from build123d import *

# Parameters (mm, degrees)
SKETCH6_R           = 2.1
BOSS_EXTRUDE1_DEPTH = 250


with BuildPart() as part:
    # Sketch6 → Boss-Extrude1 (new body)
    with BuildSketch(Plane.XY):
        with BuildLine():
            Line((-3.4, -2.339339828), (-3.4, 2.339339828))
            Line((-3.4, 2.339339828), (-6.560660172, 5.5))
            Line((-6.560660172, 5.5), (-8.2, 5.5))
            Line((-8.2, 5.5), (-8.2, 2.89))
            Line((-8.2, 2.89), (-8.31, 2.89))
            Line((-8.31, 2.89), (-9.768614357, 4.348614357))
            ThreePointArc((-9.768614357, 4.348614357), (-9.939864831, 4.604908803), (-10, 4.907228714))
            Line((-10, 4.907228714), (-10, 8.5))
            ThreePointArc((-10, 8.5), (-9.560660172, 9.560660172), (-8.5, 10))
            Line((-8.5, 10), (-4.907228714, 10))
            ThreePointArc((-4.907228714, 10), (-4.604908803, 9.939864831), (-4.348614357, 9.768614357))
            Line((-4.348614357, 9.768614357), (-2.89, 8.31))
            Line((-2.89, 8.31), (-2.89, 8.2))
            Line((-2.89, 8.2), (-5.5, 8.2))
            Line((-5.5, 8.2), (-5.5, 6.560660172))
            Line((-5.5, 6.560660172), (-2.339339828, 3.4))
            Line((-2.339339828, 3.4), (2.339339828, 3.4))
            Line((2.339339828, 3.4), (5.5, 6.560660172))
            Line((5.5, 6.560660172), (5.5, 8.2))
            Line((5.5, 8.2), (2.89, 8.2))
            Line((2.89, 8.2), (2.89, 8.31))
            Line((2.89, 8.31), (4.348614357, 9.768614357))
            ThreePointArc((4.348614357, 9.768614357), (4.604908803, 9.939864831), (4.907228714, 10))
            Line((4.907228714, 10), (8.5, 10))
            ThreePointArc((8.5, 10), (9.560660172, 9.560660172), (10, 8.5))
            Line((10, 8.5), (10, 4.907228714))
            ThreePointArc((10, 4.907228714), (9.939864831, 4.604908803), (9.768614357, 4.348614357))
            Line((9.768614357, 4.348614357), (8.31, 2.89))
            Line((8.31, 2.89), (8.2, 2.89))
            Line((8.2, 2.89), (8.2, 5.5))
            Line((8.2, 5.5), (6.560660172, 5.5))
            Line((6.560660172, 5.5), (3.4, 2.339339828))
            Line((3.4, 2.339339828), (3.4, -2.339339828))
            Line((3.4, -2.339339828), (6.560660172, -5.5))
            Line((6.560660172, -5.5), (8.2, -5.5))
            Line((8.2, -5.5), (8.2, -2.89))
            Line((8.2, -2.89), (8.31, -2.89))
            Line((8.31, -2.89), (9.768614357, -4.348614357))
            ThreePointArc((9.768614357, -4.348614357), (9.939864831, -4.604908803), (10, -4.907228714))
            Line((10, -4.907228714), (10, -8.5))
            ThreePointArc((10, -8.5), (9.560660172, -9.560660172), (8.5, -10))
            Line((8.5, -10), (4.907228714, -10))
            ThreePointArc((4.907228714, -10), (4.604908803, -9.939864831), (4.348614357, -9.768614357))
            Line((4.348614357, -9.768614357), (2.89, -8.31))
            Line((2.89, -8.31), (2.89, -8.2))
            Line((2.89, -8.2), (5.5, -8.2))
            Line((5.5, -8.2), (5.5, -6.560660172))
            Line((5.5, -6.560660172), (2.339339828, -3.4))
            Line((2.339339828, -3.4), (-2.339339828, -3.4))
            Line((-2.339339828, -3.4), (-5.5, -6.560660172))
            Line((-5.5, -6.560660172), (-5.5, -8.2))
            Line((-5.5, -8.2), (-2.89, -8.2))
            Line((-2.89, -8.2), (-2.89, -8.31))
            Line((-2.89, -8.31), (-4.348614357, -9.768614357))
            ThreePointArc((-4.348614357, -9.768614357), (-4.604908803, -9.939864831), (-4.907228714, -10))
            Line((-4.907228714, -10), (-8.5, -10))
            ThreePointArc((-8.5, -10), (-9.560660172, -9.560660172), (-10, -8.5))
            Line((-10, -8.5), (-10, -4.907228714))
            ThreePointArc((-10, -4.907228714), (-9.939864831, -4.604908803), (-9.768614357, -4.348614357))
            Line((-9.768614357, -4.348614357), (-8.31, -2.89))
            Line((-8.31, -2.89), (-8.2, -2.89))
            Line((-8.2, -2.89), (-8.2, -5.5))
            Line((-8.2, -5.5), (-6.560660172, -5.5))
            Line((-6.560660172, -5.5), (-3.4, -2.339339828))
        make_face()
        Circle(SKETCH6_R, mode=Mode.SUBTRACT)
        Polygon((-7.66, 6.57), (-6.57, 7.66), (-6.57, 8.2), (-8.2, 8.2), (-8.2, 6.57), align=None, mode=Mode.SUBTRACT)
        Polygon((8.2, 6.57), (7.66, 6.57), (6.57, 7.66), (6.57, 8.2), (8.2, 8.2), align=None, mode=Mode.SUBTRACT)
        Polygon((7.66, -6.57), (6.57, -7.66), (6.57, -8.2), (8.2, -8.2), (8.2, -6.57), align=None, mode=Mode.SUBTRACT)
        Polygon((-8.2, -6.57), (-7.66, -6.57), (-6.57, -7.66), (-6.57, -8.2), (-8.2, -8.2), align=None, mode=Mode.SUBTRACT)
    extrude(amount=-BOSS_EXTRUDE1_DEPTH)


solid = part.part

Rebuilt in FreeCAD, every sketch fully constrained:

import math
import FreeCAD as App
import Part
import Sketcher
from FreeCAD import Vector
Q = App.Units.Quantity

doc = App.newDocument("Part")
body = doc.addObject("PartDesign::Body", "Body")

# Sketch on XY plane
sketch1 = doc.addObject("Sketcher::SketchObject", "Sketch")
body.addObject(sketch1)
sketch1.AttachmentSupport = (doc.XY_Plane, [""])
sketch1.MapMode = "FlatFace"
sketch1.addGeometry([
    Part.LineSegment(Vector(-3.4, 2.34, 0), Vector(-3.4, -2.34, 0)),  # 0
    Part.LineSegment(Vector(-3.4, -2.34, 0), Vector(-6.56, -5.5, 0)),  # 1
    Part.LineSegment(Vector(-6.56, -5.5, 0), Vector(-8.2, -5.5, 0)),  # 2
    Part.LineSegment(Vector(-8.2, -5.5, 0), Vector(-8.2, -2.89, 0)),  # 3
    Part.LineSegment(Vector(-8.2, -2.89, 0), Vector(-8.31, -2.89, 0)),  # 4
    Part.LineSegment(Vector(-8.31, -2.89, 0), Vector(-9.77, -4.35, 0)),  # 5
    Part.ArcOfCircle(Part.Circle(Vector(-9.21, -4.91, 0), Vector(0, 0, 1), 0.79), math.radians(135), math.radians(180)),  # 6
    Part.LineSegment(Vector(-10, -4.91, 0), Vector(-10, -8.5, 0)),  # 7
    Part.ArcOfCircle(Part.Circle(Vector(-8.5, -8.5, 0), Vector(0, 0, 1), 1.5), math.radians(180), math.radians(270)),  # 8
    Part.LineSegment(Vector(-8.5, -10, 0), Vector(-4.91, -10, 0)),  # 9
    Part.ArcOfCircle(Part.Circle(Vector(-4.91, -9.21, 0), Vector(0, 0, 1), 0.79), math.radians(-90), math.radians(-45)),  # 10
    Part.LineSegment(Vector(-4.35, -9.77, 0), Vector(-2.89, -8.31, 0)),  # 11
    Part.LineSegment(Vector(-2.89, -8.31, 0), Vector(-2.89, -8.2, 0)),  # 12
    Part.LineSegment(Vector(-2.89, -8.2, 0), Vector(-5.5, -8.2, 0)),  # 13
    Part.LineSegment(Vector(-5.5, -8.2, 0), Vector(-5.5, -6.56, 0)),  # 14
    Part.LineSegment(Vector(-5.5, -6.56, 0), Vector(-2.34, -3.4, 0)),  # 15
    Part.LineSegment(Vector(-2.34, -3.4, 0), Vector(2.34, -3.4, 0)),  # 16
    Part.LineSegment(Vector(2.34, -3.4, 0), Vector(5.5, -6.56, 0)),  # 17
    Part.LineSegment(Vector(5.5, -6.56, 0), Vector(5.5, -8.2, 0)),  # 18
    Part.LineSegment(Vector(5.5, -8.2, 0), Vector(2.89, -8.2, 0)),  # 19
    Part.LineSegment(Vector(2.89, -8.2, 0), Vector(2.89, -8.31, 0)),  # 20
    Part.LineSegment(Vector(2.89, -8.31, 0), Vector(4.35, -9.77, 0)),  # 21
    Part.ArcOfCircle(Part.Circle(Vector(4.91, -9.21, 0), Vector(0, 0, 1), 0.79), math.radians(-135), math.radians(-90)),  # 22
    Part.LineSegment(Vector(4.91, -10, 0), Vector(8.5, -10, 0)),  # 23
    Part.ArcOfCircle(Part.Circle(Vector(8.5, -8.5, 0), Vector(0, 0, 1), 1.5), math.radians(-90), math.radians(0)),  # 24
    Part.LineSegment(Vector(10, -8.5, 0), Vector(10, -4.91, 0)),  # 25
    Part.ArcOfCircle(Part.Circle(Vector(9.21, -4.91, 0), Vector(0, 0, 1), 0.79), math.radians(0), math.radians(45)),  # 26
    Part.LineSegment(Vector(9.77, -4.35, 0), Vector(8.31, -2.89, 0)),  # 27
    Part.LineSegment(Vector(8.31, -2.89, 0), Vector(8.2, -2.89, 0)),  # 28
    Part.LineSegment(Vector(8.2, -2.89, 0), Vector(8.2, -5.5, 0)),  # 29
    Part.LineSegment(Vector(8.2, -5.5, 0), Vector(6.56, -5.5, 0)),  # 30
    Part.LineSegment(Vector(6.56, -5.5, 0), Vector(3.4, -2.34, 0)),  # 31
    Part.LineSegment(Vector(3.4, -2.34, 0), Vector(3.4, 2.34, 0)),  # 32
    Part.LineSegment(Vector(3.4, 2.34, 0), Vector(6.56, 5.5, 0)),  # 33
    Part.LineSegment(Vector(6.56, 5.5, 0), Vector(8.2, 5.5, 0)),  # 34
    Part.LineSegment(Vector(8.2, 5.5, 0), Vector(8.2, 2.89, 0)),  # 35
    Part.LineSegment(Vector(8.2, 2.89, 0), Vector(8.31, 2.89, 0)),  # 36
    Part.LineSegment(Vector(8.31, 2.89, 0), Vector(9.77, 4.35, 0)),  # 37
    Part.ArcOfCircle(Part.Circle(Vector(9.21, 4.91, 0), Vector(0, 0, 1), 0.79), math.radians(-45), math.radians(0)),  # 38
    Part.LineSegment(Vector(10, 4.91, 0), Vector(10, 8.5, 0)),  # 39
    Part.ArcOfCircle(Part.Circle(Vector(8.5, 8.5, 0), Vector(0, 0, 1), 1.5), math.radians(0), math.radians(90)),  # 40
    Part.LineSegment(Vector(8.5, 10, 0), Vector(4.91, 10, 0)),  # 41
    Part.ArcOfCircle(Part.Circle(Vector(4.91, 9.21, 0), Vector(0, 0, 1), 0.79), math.radians(90), math.radians(135)),  # 42
    Part.LineSegment(Vector(4.35, 9.77, 0), Vector(2.89, 8.31, 0)),  # 43
    Part.LineSegment(Vector(2.89, 8.31, 0), Vector(2.89, 8.2, 0)),  # 44
    Part.LineSegment(Vector(2.89, 8.2, 0), Vector(5.5, 8.2, 0)),  # 45
    Part.LineSegment(Vector(5.5, 8.2, 0), Vector(5.5, 6.56, 0)),  # 46
    Part.LineSegment(Vector(5.5, 6.56, 0), Vector(2.34, 3.4, 0)),  # 47
    Part.LineSegment(Vector(2.34, 3.4, 0), Vector(-2.34, 3.4, 0)),  # 48
    Part.LineSegment(Vector(-2.34, 3.4, 0), Vector(-5.5, 6.56, 0)),  # 49
    Part.LineSegment(Vector(-5.5, 6.56, 0), Vector(-5.5, 8.2, 0)),  # 50
    Part.LineSegment(Vector(-5.5, 8.2, 0), Vector(-2.89, 8.2, 0)),  # 51
    Part.LineSegment(Vector(-2.89, 8.2, 0), Vector(-2.89, 8.31, 0)),  # 52
    Part.LineSegment(Vector(-2.89, 8.31, 0), Vector(-4.35, 9.77, 0)),  # 53
    Part.ArcOfCircle(Part.Circle(Vector(-4.91, 9.21, 0), Vector(0, 0, 1), 0.79), math.radians(45), math.radians(90)),  # 54
    Part.LineSegment(Vector(-4.91, 10, 0), Vector(-8.5, 10, 0)),  # 55
    Part.ArcOfCircle(Part.Circle(Vector(-8.5, 8.5, 0), Vector(0, 0, 1), 1.5), math.radians(90), math.radians(180)),  # 56
    Part.LineSegment(Vector(-10, 8.5, 0), Vector(-10, 4.91, 0)),  # 57
    Part.ArcOfCircle(Part.Circle(Vector(-9.21, 4.91, 0), Vector(0, 0, 1), 0.79), math.radians(180), math.radians(225)),  # 58
    Part.LineSegment(Vector(-9.77, 4.35, 0), Vector(-8.31, 2.89, 0)),  # 59
    Part.LineSegment(Vector(-8.31, 2.89, 0), Vector(-8.2, 2.89, 0)),  # 60
    Part.LineSegment(Vector(-8.2, 2.89, 0), Vector(-8.2, 5.5, 0)),  # 61
    Part.LineSegment(Vector(-8.2, 5.5, 0), Vector(-6.56, 5.5, 0)),  # 62
    Part.LineSegment(Vector(-6.56, 5.5, 0), Vector(-3.4, 2.34, 0)),  # 63
    Part.LineSegment(Vector(7.66, -6.57, 0), Vector(8.2, -6.57, 0)),  # 64
    Part.LineSegment(Vector(8.2, -6.57, 0), Vector(8.2, -8.2, 0)),  # 65
    Part.LineSegment(Vector(8.2, -8.2, 0), Vector(6.57, -8.2, 0)),  # 66
    Part.LineSegment(Vector(6.57, -8.2, 0), Vector(6.57, -7.66, 0)),  # 67
    Part.LineSegment(Vector(6.57, -7.66, 0), Vector(7.66, -6.57, 0)),  # 68
    Part.LineSegment(Vector(-8.2, -6.57, 0), Vector(-7.66, -6.57, 0)),  # 69
    Part.LineSegment(Vector(-7.66, -6.57, 0), Vector(-6.57, -7.66, 0)),  # 70
    Part.LineSegment(Vector(-6.57, -7.66, 0), Vector(-6.57, -8.2, 0)),  # 71
    Part.LineSegment(Vector(-6.57, -8.2, 0), Vector(-8.2, -8.2, 0)),  # 72
    Part.LineSegment(Vector(-8.2, -8.2, 0), Vector(-8.2, -6.57, 0)),  # 73
    Part.LineSegment(Vector(8.2, 6.57, 0), Vector(7.66, 6.57, 0)),  # 74
    Part.LineSegment(Vector(7.66, 6.57, 0), Vector(6.57, 7.66, 0)),  # 75
    Part.LineSegment(Vector(6.57, 7.66, 0), Vector(6.57, 8.2, 0)),  # 76
    Part.LineSegment(Vector(6.57, 8.2, 0), Vector(8.2, 8.2, 0)),  # 77
    Part.LineSegment(Vector(8.2, 8.2, 0), Vector(8.2, 6.57, 0)),  # 78
    Part.Circle(Vector(0, 0, 0), Vector(0, 0, 1), 2.1),  # 79
    Part.LineSegment(Vector(-7.66, 6.57, 0), Vector(-8.2, 6.57, 0)),  # 80
    Part.LineSegment(Vector(-8.2, 6.57, 0), Vector(-8.2, 8.2, 0)),  # 81
    Part.LineSegment(Vector(-8.2, 8.2, 0), Vector(-6.57, 8.2, 0)),  # 82
    Part.LineSegment(Vector(-6.57, 8.2, 0), Vector(-6.57, 7.66, 0)),  # 83
    Part.LineSegment(Vector(-6.57, 7.66, 0), Vector(-7.66, 6.57, 0)),  # 84
], False)
sketch1.addConstraint([
    Sketcher.Constraint("Coincident", 0, 2, 1, 1),
    Sketcher.Constraint("Coincident", 1, 2, 2, 1),
    Sketcher.Constraint("Coincident", 2, 2, 3, 1),
    Sketcher.Constraint("Coincident", 3, 2, 4, 1),
    Sketcher.Constraint("Coincident", 4, 2, 5, 1),
    Sketcher.Constraint("Tangent", 5, 2, 6, 1),
    Sketcher.Constraint("Tangent", 6, 2, 7, 1),
    Sketcher.Constraint("Tangent", 7, 2, 8, 1),
    Sketcher.Constraint("Tangent", 8, 2, 9, 1),
    Sketcher.Constraint("Tangent", 9, 2, 10, 1),
    Sketcher.Constraint("Tangent", 10, 2, 11, 1),
    Sketcher.Constraint("Coincident", 11, 2, 12, 1),
    Sketcher.Constraint("Coincident", 12, 2, 13, 1),
    Sketcher.Constraint("Coincident", 13, 2, 14, 1),
    Sketcher.Constraint("Coincident", 14, 2, 15, 1),
    Sketcher.Constraint("Coincident", 15, 2, 16, 1),
    Sketcher.Constraint("Coincident", 16, 2, 17, 1),
    Sketcher.Constraint("Coincident", 17, 2, 18, 1),
    Sketcher.Constraint("Coincident", 18, 2, 19, 1),
    Sketcher.Constraint("Coincident", 19, 2, 20, 1),
    Sketcher.Constraint("Coincident", 20, 2, 21, 1),
    Sketcher.Constraint("Tangent", 21, 2, 22, 1),
    Sketcher.Constraint("Tangent", 22, 2, 23, 1),
    Sketcher.Constraint("Tangent", 23, 2, 24, 1),
    Sketcher.Constraint("Tangent", 24, 2, 25, 1),
    Sketcher.Constraint("Tangent", 25, 2, 26, 1),
    Sketcher.Constraint("Tangent", 26, 2, 27, 1),
    Sketcher.Constraint("Coincident", 27, 2, 28, 1),
    Sketcher.Constraint("Coincident", 28, 2, 29, 1),
    Sketcher.Constraint("Coincident", 29, 2, 30, 1),
    Sketcher.Constraint("Coincident", 30, 2, 31, 1),
    Sketcher.Constraint("Coincident", 31, 2, 32, 1),
    Sketcher.Constraint("Coincident", 32, 2, 33, 1),
    Sketcher.Constraint("Coincident", 33, 2, 34, 1),
    Sketcher.Constraint("Coincident", 34, 2, 35, 1),
    Sketcher.Constraint("Coincident", 35, 2, 36, 1),
    Sketcher.Constraint("Coincident", 36, 2, 37, 1),
    Sketcher.Constraint("Tangent", 37, 2, 38, 1),
    Sketcher.Constraint("Tangent", 38, 2, 39, 1),
    Sketcher.Constraint("Tangent", 39, 2, 40, 1),
    Sketcher.Constraint("Tangent", 40, 2, 41, 1),
    Sketcher.Constraint("Tangent", 41, 2, 42, 1),
    Sketcher.Constraint("Tangent", 42, 2, 43, 1),
    Sketcher.Constraint("Coincident", 43, 2, 44, 1),
    Sketcher.Constraint("Coincident", 44, 2, 45, 1),
    Sketcher.Constraint("Coincident", 45, 2, 46, 1),
    Sketcher.Constraint("Coincident", 46, 2, 47, 1),
    Sketcher.Constraint("Coincident", 47, 2, 48, 1),
    Sketcher.Constraint("Coincident", 48, 2, 49, 1),
    Sketcher.Constraint("Coincident", 49, 2, 50, 1),
    Sketcher.Constraint("Coincident", 50, 2, 51, 1),
    Sketcher.Constraint("Coincident", 51, 2, 52, 1),
    Sketcher.Constraint("Coincident", 52, 2, 53, 1),
    Sketcher.Constraint("Tangent", 53, 2, 54, 1),
    Sketcher.Constraint("Tangent", 54, 2, 55, 1),
    Sketcher.Constraint("Tangent", 55, 2, 56, 1),
    Sketcher.Constraint("Tangent", 56, 2, 57, 1),
    Sketcher.Constraint("Tangent", 57, 2, 58, 1),
    Sketcher.Constraint("Tangent", 58, 2, 59, 1),
    Sketcher.Constraint("Coincident", 59, 2, 60, 1),
    Sketcher.Constraint("Coincident", 60, 2, 61, 1),
    Sketcher.Constraint("Coincident", 61, 2, 62, 1),
    Sketcher.Constraint("Coincident", 62, 2, 63, 1),
    Sketcher.Constraint("Coincident", 63, 2, 0, 1),
    Sketcher.Constraint("Coincident", 64, 2, 65, 1),
    Sketcher.Constraint("Coincident", 65, 2, 66, 1),
    Sketcher.Constraint("Coincident", 66, 2, 67, 1),
    Sketcher.Constraint("Coincident", 67, 2, 68, 1),
    Sketcher.Constraint("Coincident", 68, 2, 64, 1),
    Sketcher.Constraint("Coincident", 69, 2, 70, 1),
    Sketcher.Constraint("Coincident", 70, 2, 71, 1),
    Sketcher.Constraint("Coincident", 71, 2, 72, 1),
    Sketcher.Constraint("Coincident", 72, 2, 73, 1),
    Sketcher.Constraint("Coincident", 73, 2, 69, 1),
    Sketcher.Constraint("Coincident", 74, 2, 75, 1),
    Sketcher.Constraint("Coincident", 75, 2, 76, 1),
    Sketcher.Constraint("Coincident", 76, 2, 77, 1),
    Sketcher.Constraint("Coincident", 77, 2, 78, 1),
    Sketcher.Constraint("Coincident", 78, 2, 74, 1),
    Sketcher.Constraint("Coincident", 80, 2, 81, 1),
    Sketcher.Constraint("Coincident", 81, 2, 82, 1),
    Sketcher.Constraint("Coincident", 82, 2, 83, 1),
    Sketcher.Constraint("Coincident", 83, 2, 84, 1),
    Sketcher.Constraint("Coincident", 84, 2, 80, 1),
    Sketcher.Constraint("Vertical", 0),
    Sketcher.Constraint("Horizontal", 2),
    Sketcher.Constraint("Vertical", 3),
    Sketcher.Constraint("Horizontal", 4),
    Sketcher.Constraint("Vertical", 7),
    Sketcher.Constraint("Horizontal", 9),
    Sketcher.Constraint("Vertical", 12),
    Sketcher.Constraint("Horizontal", 13),
    Sketcher.Constraint("Vertical", 14),
    Sketcher.Constraint("Horizontal", 16),
    Sketcher.Constraint("Vertical", 18),
    Sketcher.Constraint("Horizontal", 19),
    Sketcher.Constraint("Vertical", 20),
    Sketcher.Constraint("Horizontal", 23),
    Sketcher.Constraint("Vertical", 25),
    Sketcher.Constraint("Horizontal", 28),
    Sketcher.Constraint("Vertical", 29),
    Sketcher.Constraint("Horizontal", 30),
    Sketcher.Constraint("Vertical", 32),
    Sketcher.Constraint("Horizontal", 34),
    Sketcher.Constraint("Vertical", 35),
    Sketcher.Constraint("Horizontal", 36),
    Sketcher.Constraint("Vertical", 39),
    Sketcher.Constraint("Horizontal", 41),
    Sketcher.Constraint("Vertical", 44),
    Sketcher.Constraint("Horizontal", 45),
    Sketcher.Constraint("Vertical", 46),
    Sketcher.Constraint("Horizontal", 48),
    Sketcher.Constraint("Vertical", 50),
    Sketcher.Constraint("Horizontal", 51),
    Sketcher.Constraint("Vertical", 52),
    Sketcher.Constraint("Horizontal", 55),
    Sketcher.Constraint("Vertical", 57),
    Sketcher.Constraint("Horizontal", 60),
    Sketcher.Constraint("Vertical", 61),
    Sketcher.Constraint("Horizontal", 62),
    Sketcher.Constraint("Horizontal", 64),
    Sketcher.Constraint("Vertical", 65),
    Sketcher.Constraint("Horizontal", 66),
    Sketcher.Constraint("Vertical", 67),
    Sketcher.Constraint("Horizontal", 69),
    Sketcher.Constraint("Vertical", 71),
    Sketcher.Constraint("Horizontal", 72),
    Sketcher.Constraint("Vertical", 73),
    Sketcher.Constraint("Horizontal", 74),
    Sketcher.Constraint("Vertical", 76),
    Sketcher.Constraint("Horizontal", 77),
    Sketcher.Constraint("Vertical", 78),
    Sketcher.Constraint("Horizontal", 80),
    Sketcher.Constraint("Vertical", 81),
    Sketcher.Constraint("Horizontal", 82),
    Sketcher.Constraint("Vertical", 83),
    Sketcher.Constraint("Coincident", 79, 3, -1, 1),
    Sketcher.Constraint("Equal", 6, 10),
    Sketcher.Constraint("Equal", 10, 22),
    Sketcher.Constraint("Equal", 8, 24),
    Sketcher.Constraint("Equal", 22, 26),
    Sketcher.Constraint("Equal", 26, 38),
    Sketcher.Constraint("Equal", 24, 40),
    Sketcher.Constraint("Equal", 38, 42),
    Sketcher.Constraint("Equal", 42, 54),
    Sketcher.Constraint("Equal", 40, 56),
    Sketcher.Constraint("Equal", 54, 58),
    Sketcher.Constraint("Symmetric", 6, 3, 38, 3, -1, 1),
    Sketcher.Constraint("Symmetric", 10, 3, 42, 3, -1, 1),
    Sketcher.Constraint("Symmetric", 22, 3, 54, 3, -1, 1),
    Sketcher.Constraint("Symmetric", 26, 3, 58, 3, -1, 1),
    Sketcher.Constraint("Symmetric", 0, 2, 32, 2, -1, 1),
    Sketcher.Constraint("Symmetric", 1, 2, 33, 2, -1, 1),
    Sketcher.Constraint("Symmetric", 3, 2, 35, 2, -1, 1),
    Sketcher.Constraint("Symmetric", 11, 2, 43, 2, -1, 1),
    Sketcher.Constraint("Symmetric", 13, 2, 45, 2, -1, 1),
    Sketcher.Constraint("Symmetric", 15, 2, 47, 2, -1, 1),
    Sketcher.Constraint("Symmetric", 17, 2, 49, 2, -1, 1),
    Sketcher.Constraint("Symmetric", 19, 2, 51, 2, -1, 1),
    Sketcher.Constraint("Symmetric", 27, 2, 59, 2, -1, 1),
    Sketcher.Constraint("Symmetric", 29, 2, 61, 2, -1, 1),
    Sketcher.Constraint("Symmetric", 69, 2, 74, 2, -1, 1),
    Sketcher.Constraint("Symmetric", 70, 2, 75, 2, -1, 1),
    Sketcher.Constraint("Symmetric", 72, 2, 77, 2, -1, 1),
    Sketcher.Constraint("Symmetric", 64, 2, 80, 2, -1, 1),
    Sketcher.Constraint("Symmetric", 66, 2, 82, 2, -1, 1),
    Sketcher.Constraint("Symmetric", 10, 3, 22, 3, -2),
    Sketcher.Constraint("Symmetric", 6, 3, 26, 3, -2),
    Sketcher.Constraint("Symmetric", 14, 2, 17, 2, -2),
    Sketcher.Constraint("Symmetric", 12, 2, 19, 2, -2),
    Sketcher.Constraint("Symmetric", 4, 2, 27, 2, -2),
    Sketcher.Constraint("Symmetric", 2, 2, 29, 2, -2),
    Sketcher.Constraint("Symmetric", 68, 2, 69, 2, -2),
    Sketcher.Constraint("Symmetric", 67, 2, 70, 2, -2),
    Sketcher.Constraint("Symmetric", 65, 2, 72, 2, -2),
    Sketcher.Constraint("Parallel", 1, 5),
    Sketcher.Constraint("Parallel", 5, 11),
    Sketcher.Constraint("Parallel", 11, 15),
    Sketcher.Constraint("Perpendicular", 15, 17),
    Sketcher.Constraint("Parallel", 17, 21),
    Sketcher.Constraint("Parallel", 21, 27),
    Sketcher.Constraint("Parallel", 27, 31),
    Sketcher.Constraint("Parallel", 33, 37),
    Sketcher.Constraint("Parallel", 43, 47),
    Sketcher.Constraint("Perpendicular", 47, 49),
    Sketcher.Constraint("Parallel", 49, 53),
    Sketcher.Constraint("Parallel", 59, 63),
    Sketcher.Constraint("Perpendicular", 63, 68),
    Sketcher.Constraint("Perpendicular", 75, 84),
    Sketcher.Constraint("Horizontal", 0, 2, 31, 2),
    Sketcher.Constraint("Horizontal", 32, 2, 63, 2),
    Sketcher.Constraint("Horizontal", 19, 2, 65, 2),
    Sketcher.Constraint("Horizontal", 75, 2, 83, 2),
    Sketcher.Constraint("Vertical", 35, 2, 64, 2),
    Sketcher.Constraint("Equal", 48, 0),
    Sketcher.Constraint("Equal", 51, 3),
    Sketcher.Constraint("Equal", 55, 7),
    Sketcher.Constraint("Equal", 60, 12),
    Sketcher.Constraint("Equal", 62, 14),
    Sketcher.Constraint("Equal", 82, 65),
    Sketcher.Constraint("Equal", 5, 11),
    Sketcher.Constraint("Equal", 1, 15),
    Sketcher.Constraint("Diameter", 79, Q("4.2 mm")),
    Sketcher.Constraint("Radius", 8, Q("1.5 mm")),
    Sketcher.Constraint("Radius", 6, Q("0.79 mm")),
    Sketcher.Constraint("DistanceX", 6, 2, -1, 1, Q("10 mm")),
    Sketcher.Constraint("DistanceX", 4, 2, 4, 1, Q("0.11 mm")),
    Sketcher.Constraint("DistanceX", 13, 2, 13, 1, Q("2.61 mm")),
    Sketcher.Constraint("DistanceX", 64, 1, 64, 2, Q("0.54 mm")),
    Sketcher.Constraint("DistanceX", 66, 2, 66, 1, Q("1.63 mm")),
    Sketcher.Constraint("DistanceX", 0, 2, -1, 1, Q("3.4 mm")),
    Sketcher.Constraint("DistanceY", 1, 2, -1, 1, Q("5.5 mm")),
    Sketcher.Constraint("DistanceX", 2, 2, -1, 1, Q("8.2 mm")),
    Sketcher.Constraint("DistanceX", 2, 2, 2, 1, Q("1.63934 mm")),
])
pad1 = doc.addObject("PartDesign::Pad", "Pad")
body.addObject(pad1)
pad1.Profile = sketch1
pad1.Length = 250
pad1.Reversed = True

doc.recompute()
